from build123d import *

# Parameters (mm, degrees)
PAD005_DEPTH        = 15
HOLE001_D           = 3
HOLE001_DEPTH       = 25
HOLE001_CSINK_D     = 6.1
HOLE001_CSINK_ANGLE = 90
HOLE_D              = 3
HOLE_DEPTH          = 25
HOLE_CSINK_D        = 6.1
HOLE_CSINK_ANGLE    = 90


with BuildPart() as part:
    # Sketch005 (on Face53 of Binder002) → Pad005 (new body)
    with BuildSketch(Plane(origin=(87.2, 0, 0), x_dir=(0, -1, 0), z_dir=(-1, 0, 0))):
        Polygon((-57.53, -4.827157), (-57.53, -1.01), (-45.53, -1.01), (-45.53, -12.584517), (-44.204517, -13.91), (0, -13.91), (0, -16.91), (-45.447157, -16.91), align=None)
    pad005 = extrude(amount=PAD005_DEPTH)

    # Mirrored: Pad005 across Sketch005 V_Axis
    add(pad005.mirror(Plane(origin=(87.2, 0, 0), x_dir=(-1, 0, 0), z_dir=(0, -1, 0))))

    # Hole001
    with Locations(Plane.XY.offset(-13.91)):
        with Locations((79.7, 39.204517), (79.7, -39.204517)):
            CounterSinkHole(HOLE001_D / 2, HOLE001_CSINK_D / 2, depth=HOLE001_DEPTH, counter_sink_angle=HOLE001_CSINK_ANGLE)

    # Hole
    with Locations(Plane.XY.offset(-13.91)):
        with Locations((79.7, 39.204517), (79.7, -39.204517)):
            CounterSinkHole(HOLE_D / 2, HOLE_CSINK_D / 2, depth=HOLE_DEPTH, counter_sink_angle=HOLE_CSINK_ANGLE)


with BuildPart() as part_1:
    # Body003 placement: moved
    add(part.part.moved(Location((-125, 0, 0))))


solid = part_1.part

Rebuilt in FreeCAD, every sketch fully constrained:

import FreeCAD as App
import Part
import Sketcher
Q = App.Units.Quantity

doc = App.newDocument("Part")
params = doc.addObject("Spreadsheet::Sheet", "Params")
for row, (alias, value) in enumerate([
    ("sketch1_width", "12 mm"),
    ("sketch1_height", "3 mm"),
    ("pad1_length", "15 mm"),
    ("sketch2_diameter", "3 mm"),
    ("hole_diameter", "3 mm"),
    ("hole_depth", "25 mm"),
    ("hole_csink_diameter", "6.1 mm"),
    ("sketch3_diameter", "3 mm"),
    ("hole2_diameter", "3 mm"),
    ("hole2_depth", "25 mm"),
    ("hole2_csink_diameter", "6.1 mm"),
], start=1):
    params.set(f"A{row}", alias)
    params.set(f"B{row}", "=" + value)
    params.setAlias(f"B{row}", alias)

body = doc.addObject("PartDesign::Body", "Body")

# Sketch on YZ plane
sketch1 = doc.addObject("Sketcher::SketchObject", "Sketch")
body.addObject(sketch1)
sketch1.AttachmentSupport = (doc.YZ_Plane, [""])
sketch1.MapMode = "FlatFace"
sketch1.AttachmentOffset = App.Placement(App.Vector(0, 0, 87.2), App.Rotation())
sketch1.addGeometry(Part.LineSegment(App.Vector(57.5, -1, 0), App.Vector(57.5, -4.8, 0)), False)
sketch1.addGeometry(Part.LineSegment(App.Vector(57.5, -4.8, 0), App.Vector(45.4, -16.9, 0)), False)
sketch1.addGeometry(Part.LineSegment(App.Vector(45.4, -16.9, 0), App.Vector(0, -16.9, 0)), False)
sketch1.addGeometry(Part.LineSegment(App.Vector(0, -16.9, 0), App.Vector(0, -13.9, 0)), False)
sketch1.addGeometry(Part.LineSegment(App.Vector(0, -13.9, 0), App.Vector(44.2, -13.9, 0)), False)
sketch1.addGeometry(Part.LineSegment(App.Vector(44.2, -13.9, 0), App.Vector(45.5, -12.6, 0)), False)
sketch1.addGeometry(Part.LineSegment(App.Vector(45.5, -12.6, 0), App.Vector(45.5, -1, 0)), False)
sketch1.addGeometry(Part.LineSegment(App.Vector(45.5, -1, 0), App.Vector(57.5, -1, 0)), False)
sketch1.addConstraint(Sketcher.Constraint("Coincident", 0, 2, 1, 1))
sketch1.addConstraint(Sketcher.Constraint("Coincident", 1, 2, 2, 1))
sketch1.addConstraint(Sketcher.Constraint("Coincident", 2, 2, 3, 1))
sketch1.addConstraint(Sketcher.Constraint("Coincident", 3, 2, 4, 1))
sketch1.addConstraint(Sketcher.Constraint("Coincident", 4, 2, 5, 1))
sketch1.addConstraint(Sketcher.Constraint("Coincident", 5, 2, 6, 1))
sketch1.addConstraint(Sketcher.Constraint("Coincident", 6, 2, 7, 1))
sketch1.addConstraint(Sketcher.Constraint("Coincident", 7, 2, 0, 1))
sketch1.addConstraint(Sketcher.Constraint("Vertical", 0))
sketch1.addConstraint(Sketcher.Constraint("Horizontal", 2))
sketch1.addConstraint(Sketcher.Constraint("Vertical", 3))
sketch1.addConstraint(Sketcher.Constraint("Horizontal", 4))
sketch1.addConstraint(Sketcher.Constraint("Vertical", 6))
sketch1.addConstraint(Sketcher.Constraint("Horizontal", 7))
sketch1.addConstraint(Sketcher.Constraint("PointOnObject", 2, 2, -2))
sketch1.addConstraint(Sketcher.Constraint("Parallel", 1, 5))
sketch1.addConstraint(Sketcher.Constraint("DistanceX", 7, 1, 7, 2, Q("12 mm")))
sketch1.addConstraint(Sketcher.Constraint("DistanceY", 3, 1, 3, 2, Q("3 mm")))
sketch1.addConstraint(Sketcher.Constraint("Angle", 1, Q("-135 deg")))
sketch1.addConstraint(Sketcher.Constraint("DistanceY", 4, 2, 6, 2, Q("12.9 mm")))
sketch1.addConstraint(Sketcher.Constraint("DistanceX", -1, 1, 0, 2, Q("57.53 mm")))
sketch1.addConstraint(Sketcher.Constraint("DistanceY", 1, 2, -1, 1, Q("16.91 mm")))
sketch1.addConstraint(Sketcher.Constraint("Distance", 1, Q("17.08772 mm")))
sketch1.addConstraint(Sketcher.Constraint("DistanceX", 4, 1, 4, 2, Q("44.204517 mm")))
sketch1.setExpression("Constraints[16]", "Params.sketch1_width")
sketch1.setExpression("Constraints[17]", "Params.sketch1_height")
pad1 = doc.addObject("PartDesign::Pad", "Pad")
body.addObject(pad1)
pad1.Profile = sketch1
pad1.setExpression("Length", "Params.pad1_length")
pad1.Reversed = True
doc.recompute()

mirrored = doc.addObject("PartDesign::Mirrored", "Mirrored")
body.addObject(mirrored)
mirrored.Originals = [pad1]
mirrored.MirrorPlane = (doc.XZ_Plane, [""])
body.Tip = mirrored

# Sketch on XY plane
sketch2 = doc.addObject("Sketcher::SketchObject", "Sketch001")
body.addObject(sketch2)
sketch2.AttachmentSupport = (doc.XY_Plane, [""])
sketch2.MapMode = "FlatFace"
sketch2.AttachmentOffset = App.Placement(App.Vector(0, 0, -13.91), App.Rotation())
sketch2.addGeometry(Part.Circle(App.Vector(79.7, 39.2, 0), App.Vector(0, 0, 1), 1.5), False)
sketch2.addGeometry(Part.Circle(App.Vector(79.7, -39.2, 0), App.Vector(0, 0, 1), 1.5), False)
sketch2.addConstraint(Sketcher.Constraint("Equal", 0, 1))
sketch2.addConstraint(Sketcher.Constraint("Symmetric", 0, 3, 1, 3, -1))
sketch2.addConstraint(Sketcher.Constraint("Diameter", 0, Q("3 mm")))
sketch2.addConstraint(Sketcher.Constraint("DistanceX", -1, 1, 0, 3, Q("79.7 mm")))
sketch2.addConstraint(Sketcher.Constraint("DistanceY", -1, 1, 0, 3, Q("39.204517 mm")))
sketch2.setExpression("Constraints[2]", "Params.sketch2_diameter")
doc.recompute()
hole = doc.addObject("PartDesign::Hole", "Hole")
body.addObject(hole)
hole.Profile = sketch2
hole.ThreadType = "None"
hole.setExpression("Diameter", "Params.hole_diameter")
hole.DepthType = "Dimension"
hole.setExpression("Depth", "Params.hole_depth")
hole.DrillPoint = "Flat"
hole.HoleCutType = "Countersink"
hole.setExpression("HoleCutDiameter", "Params.hole_csink_diameter")
hole.HoleCutCountersinkAngle = 90

# Sketch on XY plane
sketch3 = doc.addObject("Sketcher::SketchObject", "Sketch002")
body.addObject(sketch3)
sketch3.AttachmentSupport = (doc.XY_Plane, [""])
sketch3.MapMode = "FlatFace"
sketch3.AttachmentOffset = App.Placement(App.Vector(0, 0, -13.91), App.Rotation())
sketch3.addGeometry(Part.Circle(App.Vector(79.7, 39.2, 0), App.Vector(0, 0, 1), 1.5), False)
sketch3.addGeometry(Part.Circle(App.Vector(79.7, -39.2, 0), App.Vector(0, 0, 1), 1.5), False)
sketch3.addConstraint(Sketcher.Constraint("Equal", 0, 1))
sketch3.addConstraint(Sketcher.Constraint("Symmetric", 0, 3, 1, 3, -1))
sketch3.addConstraint(Sketcher.Constraint("Diameter", 0, Q("3 mm")))
sketch3.addConstraint(Sketcher.Constraint("DistanceX", -1, 1, 0, 3, Q("79.7 mm")))
sketch3.addConstraint(Sketcher.Constraint("DistanceY", -1, 1, 0, 3, Q("39.204517 mm")))
sketch3.setExpression("Constraints[2]", "Params.sketch3_diameter")
doc.recompute()
hole2 = doc.addObject("PartDesign::Hole", "Hole001")
body.addObject(hole2)
hole2.Profile = sketch3
hole2.ThreadType = "None"
hole2.setExpression("Diameter", "Params.hole2_diameter")
hole2.DepthType = "Dimension"
hole2.setExpression("Depth", "Params.hole2_depth")
hole2.DrillPoint = "Flat"
hole2.HoleCutType = "Countersink"
hole2.setExpression("HoleCutDiameter", "Params.hole2_csink_diameter")
hole2.HoleCutCountersinkAngle = 90
body2 = doc.addObject("PartDesign::Body", "Body001")
doc.recompute()

body.Placement = App.Placement(App.Vector(-125, 0, 0), App.Rotation(App.Vector(0, 0, 1), 0))
boolean = doc.addObject("PartDesign::Boolean", "Boolean")
body2.addObject(boolean)
boolean.Type = "Fuse"
boolean.addObjects([body])

doc.recompute()
